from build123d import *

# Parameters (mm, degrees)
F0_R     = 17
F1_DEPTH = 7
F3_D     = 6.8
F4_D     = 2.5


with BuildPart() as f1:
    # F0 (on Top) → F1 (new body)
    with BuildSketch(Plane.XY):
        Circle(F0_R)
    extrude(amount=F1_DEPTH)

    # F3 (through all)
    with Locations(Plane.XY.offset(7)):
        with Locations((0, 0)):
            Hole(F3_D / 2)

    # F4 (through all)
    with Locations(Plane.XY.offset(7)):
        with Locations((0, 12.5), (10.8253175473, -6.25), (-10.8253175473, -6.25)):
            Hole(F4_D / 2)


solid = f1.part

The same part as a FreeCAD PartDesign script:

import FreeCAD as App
import Part
import Sketcher

V = App.Vector
Q = App.Units.Quantity

doc = App.newDocument("Part")
body = doc.addObject("PartDesign::Body", "Body")

# Sketch on XY plane
sketch1 = body.newObject("Sketcher::SketchObject", "Sketch")
sketch1.AttachmentSupport = (doc.getObject("XY_Plane"), [""])
sketch1.MapMode = "FlatFace"
sketch1.addGeometry(Part.Circle(V(0, 0, 0), V(0, 0, 1), 17), False)
sketch1.addConstraint(Sketcher.Constraint("Coincident", 0, 3, -1, 1))
sketch1.addConstraint(Sketcher.Constraint("Diameter", 0, Q("34 mm")))
pad1 = body.newObject("PartDesign::Pad", "Pad")
pad1.Profile = sketch1
pad1.Length = 7

# Sketch on XY plane
sketch2 = body.newObject("Sketcher::SketchObject", "Sketch001")
sketch2.AttachmentSupport = (doc.getObject("XY_Plane"), [""])
sketch2.MapMode = "FlatFace"
sketch2.AttachmentOffset = App.Placement(V(0, 0, 7), App.Rotation())
sketch2.addGeometry(Part.Circle(V(0, 0, 0), V(0, 0, 1), 3.4), False)
sketch2.addConstraint(Sketcher.Constraint("Coincident", 0, 3, -1, 1))
sketch2.addConstraint(Sketcher.Constraint("Diameter", 0, Q("6.8 mm")))
doc.recompute()
hole = body.newObject("PartDesign::Hole", "Hole")
hole.Profile = sketch2
hole.ThreadType = "None"
hole.Diameter = 6.8
hole.DepthType = "ThroughAll"

# Sketch on XY plane
sketch3 = body.newObject("Sketcher::SketchObject", "Sketch002")
sketch3.AttachmentSupport = (doc.getObject("XY_Plane"), [""])
sketch3.MapMode = "FlatFace"
sketch3.AttachmentOffset = App.Placement(V(0, 0, 7), App.Rotation())
sketch3.addGeometry(Part.Circle(V(0, 12.5, 0), V(0, 0, 1), 1.25), False)
sketch3.addGeometry(Part.Circle(V(10.825318, -6.25, 0), V(0, 0, 1), 1.25), False)
sketch3.addGeometry(Part.Circle(V(-10.825318, -6.25, 0), V(0, 0, 1), 1.25), False)
sketch3.addConstraint(Sketcher.Constraint("Equal", 0, 1))
sketch3.addConstraint(Sketcher.Constraint("Equal", 1, 2))
sketch3.addConstraint(Sketcher.Constraint("Symmetric", 1, 3, 2, 3, -2))
sketch3.addConstraint(Sketcher.Constraint("PointOnObject", 0, 3, -2))
sketch3.addConstraint(Sketcher.Constraint("Diameter", 0, Q("2.5 mm")))
sketch3.addConstraint(Sketcher.Constraint("DistanceY", -1, 1, 0, 3, Q("12.5 mm")))
sketch3.addConstraint(Sketcher.Constraint("DistanceY", 1, 3, -1, 1, Q("6.25 mm")))
sketch3.addConstraint(Sketcher.Constraint("DistanceX", -1, 1, 1, 3, Q("10.825318 mm")))
doc.recompute()
hole2 = body.newObject("PartDesign::Hole", "Hole001")
hole2.Profile = sketch3
hole2.ThreadType = "None"
hole2.Diameter = 2.5
hole2.DepthType = "ThroughAll"

doc.recompute()
